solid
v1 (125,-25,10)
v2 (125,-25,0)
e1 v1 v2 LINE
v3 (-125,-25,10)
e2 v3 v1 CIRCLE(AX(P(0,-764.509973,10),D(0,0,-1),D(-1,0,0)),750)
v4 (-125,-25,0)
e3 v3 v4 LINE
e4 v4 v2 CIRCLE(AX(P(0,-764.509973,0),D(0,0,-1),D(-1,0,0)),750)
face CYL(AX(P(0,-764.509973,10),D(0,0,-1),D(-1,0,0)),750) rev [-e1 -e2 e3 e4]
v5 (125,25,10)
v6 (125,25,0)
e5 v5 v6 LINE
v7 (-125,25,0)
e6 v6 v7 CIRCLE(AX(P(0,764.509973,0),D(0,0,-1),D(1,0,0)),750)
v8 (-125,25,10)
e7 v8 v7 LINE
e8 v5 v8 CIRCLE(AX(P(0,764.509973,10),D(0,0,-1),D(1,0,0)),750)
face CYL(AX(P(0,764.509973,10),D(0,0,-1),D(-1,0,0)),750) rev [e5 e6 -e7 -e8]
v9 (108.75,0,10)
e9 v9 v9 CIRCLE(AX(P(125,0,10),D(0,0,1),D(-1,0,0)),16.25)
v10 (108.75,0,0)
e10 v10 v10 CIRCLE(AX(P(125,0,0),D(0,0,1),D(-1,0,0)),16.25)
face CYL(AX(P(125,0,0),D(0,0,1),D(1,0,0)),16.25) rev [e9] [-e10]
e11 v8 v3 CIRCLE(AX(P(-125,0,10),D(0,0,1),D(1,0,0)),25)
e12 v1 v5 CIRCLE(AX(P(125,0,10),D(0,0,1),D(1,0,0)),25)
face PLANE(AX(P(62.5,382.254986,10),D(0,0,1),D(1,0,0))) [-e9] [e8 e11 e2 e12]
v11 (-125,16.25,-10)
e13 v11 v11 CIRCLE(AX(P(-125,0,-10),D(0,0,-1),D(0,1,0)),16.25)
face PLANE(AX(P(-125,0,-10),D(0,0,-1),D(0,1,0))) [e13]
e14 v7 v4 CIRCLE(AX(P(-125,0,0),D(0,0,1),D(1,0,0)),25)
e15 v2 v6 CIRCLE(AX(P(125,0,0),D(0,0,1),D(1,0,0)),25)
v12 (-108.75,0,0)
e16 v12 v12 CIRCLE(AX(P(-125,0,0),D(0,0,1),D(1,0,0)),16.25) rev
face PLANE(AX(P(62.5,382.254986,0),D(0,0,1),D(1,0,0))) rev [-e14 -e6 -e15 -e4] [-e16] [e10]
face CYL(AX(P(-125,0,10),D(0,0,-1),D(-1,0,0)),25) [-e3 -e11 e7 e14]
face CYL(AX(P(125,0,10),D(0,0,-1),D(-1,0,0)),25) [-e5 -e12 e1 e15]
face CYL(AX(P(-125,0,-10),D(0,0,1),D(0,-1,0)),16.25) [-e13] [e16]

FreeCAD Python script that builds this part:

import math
import FreeCAD as App
import Part
import Sketcher

V = App.Vector

doc = App.newDocument("Part")
body = doc.addObject("PartDesign::Body", "Body")

sketch1 = body.newObject("Sketcher::SketchObject", "Sketch")
sketch1.AttachmentSupport = (doc.getObject("XY_Plane"), [""])
sketch1.MapMode = "FlatFace"
sketch1.addGeometry([
    Part.ArcOfCircle(Part.Circle(V(-125, 0, 0), V(0, 0, 1), 25), math.radians(90), math.radians(270)),
    Part.ArcOfCircle(Part.Circle(V(0, -765, 0), V(0, 0, 1), 750), math.radians(80.41), math.radians(99.59)),
    Part.ArcOfCircle(Part.Circle(V(125, 0, 0), V(0, 0, 1), 25), math.radians(-90), math.radians(90)),
    Part.ArcOfCircle(Part.Circle(V(0, 765, 0), V(0, 0, 1), 750), math.radians(-99.59), math.radians(-80.41)),
], False)
sketch1.addConstraint([
    Sketcher.Constraint("Coincident", 0, 2, 1, 2),
    Sketcher.Constraint("Coincident", 1, 1, 2, 1),
    Sketcher.Constraint("Coincident", 2, 2, 3, 2),
    Sketcher.Constraint("Coincident", 3, 1, 0, 1),
    Sketcher.Constraint("Equal", 0, 2),
    Sketcher.Constraint("Equal", 1, 3),
    Sketcher.Constraint("Symmetric", 0, 3, 2, 3, -1, 1),
    Sketcher.Constraint("Symmetric", 1, 3, 3, 3, -1, 1),
    Sketcher.Constraint("PointOnObject", 0, 3, -1),
    Sketcher.Constraint("PointOnObject", 1, 3, -2),
    Sketcher.Constraint("Vertical", 2, 3, 1, 1),
    Sketcher.Constraint("Radius", 0, 25.0),
    Sketcher.Constraint("Radius", 1, 750.0),
    Sketcher.Constraint("DistanceX", 0, 3, -1, 1, 125.0),
])
pad1 = body.newObject("PartDesign::Pad", "Pad")
pad1.Profile = sketch1
pad1.Length = 10

sketch2 = body.newObject("Sketcher::SketchObject", "Sketch001")
sketch2.AttachmentSupport = (doc.getObject("XY_Plane"), [""])
sketch2.MapMode = "FlatFace"
sketch2.addGeometry(Part.Circle(V(-125, 0, 0), V(0, 0, 1), 16), False)
sketch2.addConstraint([
    Sketcher.Constraint("PointOnObject", 0, 3, -1),
    Sketcher.Constraint("Diameter", 0, 32.5),
    Sketcher.Constraint("DistanceX", 0, 3, -1, 1, 125.0),
])
pad2 = body.newObject("PartDesign::Pad", "Pad001")
pad2.Profile = sketch2
pad2.Length = 10
pad2.Reversed = True

sketch3 = body.newObject("Sketcher::SketchObject", "Sketch002")
sketch3.AttachmentSupport = (doc.getObject("XY_Plane"), [""])
sketch3.MapMode = "FlatFace"
sketch3.AttachmentOffset = App.Placement(V(0, 0, 10), App.Rotation())
sketch3.addGeometry(Part.Circle(V(125, 0, 0), V(0, 0, 1), 16), False)
sketch3.addConstraint([
    Sketcher.Constraint("PointOnObject", 0, 3, -1),
    Sketcher.Constraint("Diameter", 0, 32.5),
    Sketcher.Constraint("DistanceX", -1, 1, 0, 3, 125.0),
])
pocket1 = body.newObject("PartDesign::Pocket", "Pocket")
pocket1.Profile = sketch3
pocket1.Length = 10

doc.recompute()
